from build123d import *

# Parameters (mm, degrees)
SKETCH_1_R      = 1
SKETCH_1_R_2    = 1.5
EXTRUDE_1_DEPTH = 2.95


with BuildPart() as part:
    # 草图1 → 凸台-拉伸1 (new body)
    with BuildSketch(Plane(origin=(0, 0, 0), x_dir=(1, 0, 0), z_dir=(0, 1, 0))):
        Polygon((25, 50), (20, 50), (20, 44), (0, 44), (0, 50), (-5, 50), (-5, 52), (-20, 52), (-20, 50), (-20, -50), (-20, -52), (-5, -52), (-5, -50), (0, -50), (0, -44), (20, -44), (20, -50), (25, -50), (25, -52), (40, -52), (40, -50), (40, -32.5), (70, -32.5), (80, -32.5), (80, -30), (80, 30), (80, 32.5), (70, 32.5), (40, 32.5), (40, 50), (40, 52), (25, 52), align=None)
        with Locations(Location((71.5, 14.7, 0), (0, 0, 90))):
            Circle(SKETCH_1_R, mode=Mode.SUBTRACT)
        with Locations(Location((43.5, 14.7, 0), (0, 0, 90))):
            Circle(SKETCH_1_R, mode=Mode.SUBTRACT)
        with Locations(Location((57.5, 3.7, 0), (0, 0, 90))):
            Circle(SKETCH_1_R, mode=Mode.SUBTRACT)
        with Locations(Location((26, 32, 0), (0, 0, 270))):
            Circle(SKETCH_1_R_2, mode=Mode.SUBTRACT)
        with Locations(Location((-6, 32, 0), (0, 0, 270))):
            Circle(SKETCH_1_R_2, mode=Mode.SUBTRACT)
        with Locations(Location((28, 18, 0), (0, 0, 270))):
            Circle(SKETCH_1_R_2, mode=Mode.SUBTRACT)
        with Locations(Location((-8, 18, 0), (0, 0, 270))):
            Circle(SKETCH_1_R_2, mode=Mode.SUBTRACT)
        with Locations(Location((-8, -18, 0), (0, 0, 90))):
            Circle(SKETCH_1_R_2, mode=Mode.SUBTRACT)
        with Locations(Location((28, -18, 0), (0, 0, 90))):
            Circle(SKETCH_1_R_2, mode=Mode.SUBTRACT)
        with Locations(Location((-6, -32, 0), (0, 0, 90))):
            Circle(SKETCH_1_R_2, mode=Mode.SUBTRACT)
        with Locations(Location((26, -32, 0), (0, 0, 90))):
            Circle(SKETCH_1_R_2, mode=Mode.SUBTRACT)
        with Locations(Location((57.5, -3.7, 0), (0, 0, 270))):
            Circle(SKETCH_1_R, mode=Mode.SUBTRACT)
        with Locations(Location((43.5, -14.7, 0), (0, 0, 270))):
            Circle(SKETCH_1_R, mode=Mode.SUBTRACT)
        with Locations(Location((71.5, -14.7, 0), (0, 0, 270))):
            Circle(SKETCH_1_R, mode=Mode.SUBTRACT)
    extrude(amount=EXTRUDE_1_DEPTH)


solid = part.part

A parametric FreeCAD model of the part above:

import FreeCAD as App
import Part
import Sketcher

V = App.Vector


def add_polygon(sketch, points):
    """Adds a closed chain of lines whose ends are joined by coincident constraints."""
    first, n = sketch.GeometryCount, len(points)
    for a, b in zip(points, points[1:] + points[:1]):
        sketch.addGeometry(Part.LineSegment(App.Vector(*a, 0), App.Vector(*b, 0)), False)
    for i in range(n):
        sketch.addConstraint(Sketcher.Constraint("Coincident", first + i, 2, first + (i + 1) % n, 1))

doc = App.newDocument("Part")
body = doc.addObject("PartDesign::Body", "Body")

# Sketch on XZ plane
sketch1 = body.newObject("Sketcher::SketchObject", "Sketch")
sketch1.AttachmentSupport = (doc.getObject("XZ_Plane"), [""])
sketch1.MapMode = "FlatFace"
add_polygon(sketch1, [(25, -50), (20, -50), (20, -44), (0, -44), (0, -50), (-5, -50), (-5, -52), (-20, -52), (-20, 52), (-5, 52), (-5, 50), (0, 50), (0, 44), (20, 44), (20, 50), (25, 50), (25, 52), (40, 52), (40, 32.5), (80, 32.5), (80, -32.5), (40, -32.5), (40, -52), (25, -52)])  # lines 0-23
sketch1.addGeometry(Part.Circle(V(-6, 32, 0), V(0, 0, 1), 1.5), False)  # 24
sketch1.addGeometry(Part.Circle(V(-8, 18, 0), V(0, 0, 1), 1.5), False)  # 25
sketch1.addGeometry(Part.Circle(V(26, 32, 0), V(0, 0, 1), 1.5), False)  # 26
sketch1.addGeometry(Part.Circle(V(28, 18, 0), V(0, 0, 1), 1.5), False)  # 27
sketch1.addGeometry(Part.Circle(V(43.5, 14.7, 0), V(0, 0, 1), 1), False)  # 28
sketch1.addGeometry(Part.Circle(V(71.5, 14.7, 0), V(0, 0, 1), 1), False)  # 29
sketch1.addGeometry(Part.Circle(V(57.5, 3.7, 0), V(0, 0, 1), 1), False)  # 30
sketch1.addGeometry(Part.Circle(V(-8, -18, 0), V(0, 0, 1), 1.5), False)  # 31
sketch1.addGeometry(Part.Circle(V(-6, -32, 0), V(0, 0, 1), 1.5), False)  # 32
sketch1.addGeometry(Part.Circle(V(28, -18, 0), V(0, 0, 1), 1.5), False)  # 33
sketch1.addGeometry(Part.Circle(V(26, -32, 0), V(0, 0, 1), 1.5), False)  # 34
sketch1.addGeometry(Part.Circle(V(43.5, -14.7, 0), V(0, 0, 1), 1), False)  # 35
sketch1.addGeometry(Part.Circle(V(57.5, -3.7, 0), V(0, 0, 1), 1), False)  # 36
sketch1.addGeometry(Part.Circle(V(71.5, -14.7, 0), V(0, 0, 1), 1), False)  # 37
sketch1.addConstraint([
    Sketcher.Constraint("Horizontal", 0),
    Sketcher.Constraint("Vertical", 1),
    Sketcher.Constraint("Horizontal", 2),
    Sketcher.Constraint("Vertical", 3),
    Sketcher.Constraint("Horizontal", 4),
    Sketcher.Constraint("Vertical", 5),
    Sketcher.Constraint("Horizontal", 6),
    Sketcher.Constraint("Vertical", 7),
    Sketcher.Constraint("Horizontal", 8),
    Sketcher.Constraint("Vertical", 9),
    Sketcher.Constraint("Horizontal", 10),
    Sketcher.Constraint("Vertical", 11),
    Sketcher.Constraint("Horizontal", 12),
    Sketcher.Constraint("Vertical", 13),
    Sketcher.Constraint("Horizontal", 14),
    Sketcher.Constraint("Vertical", 15),
    Sketcher.Constraint("Horizontal", 16),
    Sketcher.Constraint("Vertical", 17),
    Sketcher.Constraint("Horizontal", 18),
    Sketcher.Constraint("Vertical", 19),
    Sketcher.Constraint("Horizontal", 20),
    Sketcher.Constraint("Vertical", 21),
    Sketcher.Constraint("Horizontal", 22),
    Sketcher.Constraint("Vertical", 23),
    Sketcher.Constraint("Equal", 24, 25),
    Sketcher.Constraint("Equal", 25, 26),
    Sketcher.Constraint("Equal", 26, 27),
    Sketcher.Constraint("Equal", 28, 29),
    Sketcher.Constraint("Equal", 29, 30),
    Sketcher.Constraint("Equal", 27, 31),
    Sketcher.Constraint("Equal", 31, 32),
    Sketcher.Constraint("Equal", 32, 33),
    Sketcher.Constraint("Equal", 33, 34),
    Sketcher.Constraint("Equal", 30, 35),
    Sketcher.Constraint("Equal", 35, 36),
    Sketcher.Constraint("Equal", 36, 37),
    Sketcher.Constraint("Symmetric", 3, 2, 10, 2, -1, 1),
    Sketcher.Constraint("Symmetric", 25, 3, 31, 3, -1),
    Sketcher.Constraint("Symmetric", 24, 3, 32, 3, -1),
    Sketcher.Constraint("Symmetric", 27, 3, 33, 3, -1),
    Sketcher.Constraint("Symmetric", 26, 3, 34, 3, -1),
    Sketcher.Constraint("Symmetric", 28, 3, 35, 3, -1),
    Sketcher.Constraint("Symmetric", 30, 3, 36, 3, -1),
    Sketcher.Constraint("Symmetric", 29, 3, 37, 3, -1),
    Sketcher.Constraint("Symmetric", 5, 2, 8, 2, -1),
    Sketcher.Constraint("Symmetric", 2, 2, 11, 2, -1),
    Sketcher.Constraint("Symmetric", 0, 2, 13, 2, -1),
    Sketcher.Constraint("Symmetric", 17, 2, 20, 2, -1),
    Sketcher.Constraint("Symmetric", 15, 2, 22, 2, -1),
    Sketcher.Constraint("Horizontal", 24, 3, 26, 3),
    Sketcher.Constraint("Horizontal", 25, 3, 27, 3),
    Sketcher.Constraint("Horizontal", 28, 3, 29, 3),
    Sketcher.Constraint("Horizontal", 0, 2, 3, 2),
    Sketcher.Constraint("Horizontal", 8, 2, 15, 2),
    Sketcher.Constraint("Equal", 0, 4),
    Sketcher.Constraint("Equal", 8, 16),
    Sketcher.Constraint("Diameter", 24, 3.0),
    Sketcher.Constraint("Diameter", 28, 2.0),
    Sketcher.Constraint("DistanceX", 0, 2, 0, 1, 5.0),
    Sketcher.Constraint("DistanceX", 2, 2, 2, 1, 20.0),
    Sketcher.Constraint("DistanceX", 6, 2, 6, 1, 15.0),
    Sketcher.Constraint("DistanceX", 18, 1, 18, 2, 40.0),
    Sketcher.Constraint("DistanceY", 1, 1, 1, 2, 6.0),
    Sketcher.Constraint("DistanceY", 5, 2, 5, 1, 2.0),
    Sketcher.Constraint("DistanceY", 7, 1, 7, 2, 104.0),
    Sketcher.Constraint("DistanceY", 19, 2, 19, 1, 65.0),
    Sketcher.Constraint("DistanceX", 24, 3, -1, 1, 6.0),
    Sketcher.Constraint("DistanceY", -1, 1, 24, 3, 32.0),
    Sketcher.Constraint("DistanceX", 25, 3, -1, 1, 8.0),
    Sketcher.Constraint("DistanceY", -1, 1, 25, 3, 18.0),
    Sketcher.Constraint("DistanceX", -1, 1, 26, 3, 26.0),
    Sketcher.Constraint("DistanceX", -1, 1, 27, 3, 28.0),
    Sketcher.Constraint("DistanceX", 28, 3, 29, 3, 28.0),
    Sketcher.Constraint("DistanceX", 28, 3, 30, 3, 14.0),
    Sketcher.Constraint("DistanceY", 30, 3, 28, 3, 11.0),
    Sketcher.Constraint("DistanceX", -1, 1, 28, 3, 43.5),
    Sketcher.Constraint("DistanceY", -1, 1, 28, 3, 14.7),
])
pad1 = body.newObject("PartDesign::Pad", "Pad")
pad1.Profile = sketch1
pad1.Length = 2.95
pad1.Reversed = True

doc.recompute()
